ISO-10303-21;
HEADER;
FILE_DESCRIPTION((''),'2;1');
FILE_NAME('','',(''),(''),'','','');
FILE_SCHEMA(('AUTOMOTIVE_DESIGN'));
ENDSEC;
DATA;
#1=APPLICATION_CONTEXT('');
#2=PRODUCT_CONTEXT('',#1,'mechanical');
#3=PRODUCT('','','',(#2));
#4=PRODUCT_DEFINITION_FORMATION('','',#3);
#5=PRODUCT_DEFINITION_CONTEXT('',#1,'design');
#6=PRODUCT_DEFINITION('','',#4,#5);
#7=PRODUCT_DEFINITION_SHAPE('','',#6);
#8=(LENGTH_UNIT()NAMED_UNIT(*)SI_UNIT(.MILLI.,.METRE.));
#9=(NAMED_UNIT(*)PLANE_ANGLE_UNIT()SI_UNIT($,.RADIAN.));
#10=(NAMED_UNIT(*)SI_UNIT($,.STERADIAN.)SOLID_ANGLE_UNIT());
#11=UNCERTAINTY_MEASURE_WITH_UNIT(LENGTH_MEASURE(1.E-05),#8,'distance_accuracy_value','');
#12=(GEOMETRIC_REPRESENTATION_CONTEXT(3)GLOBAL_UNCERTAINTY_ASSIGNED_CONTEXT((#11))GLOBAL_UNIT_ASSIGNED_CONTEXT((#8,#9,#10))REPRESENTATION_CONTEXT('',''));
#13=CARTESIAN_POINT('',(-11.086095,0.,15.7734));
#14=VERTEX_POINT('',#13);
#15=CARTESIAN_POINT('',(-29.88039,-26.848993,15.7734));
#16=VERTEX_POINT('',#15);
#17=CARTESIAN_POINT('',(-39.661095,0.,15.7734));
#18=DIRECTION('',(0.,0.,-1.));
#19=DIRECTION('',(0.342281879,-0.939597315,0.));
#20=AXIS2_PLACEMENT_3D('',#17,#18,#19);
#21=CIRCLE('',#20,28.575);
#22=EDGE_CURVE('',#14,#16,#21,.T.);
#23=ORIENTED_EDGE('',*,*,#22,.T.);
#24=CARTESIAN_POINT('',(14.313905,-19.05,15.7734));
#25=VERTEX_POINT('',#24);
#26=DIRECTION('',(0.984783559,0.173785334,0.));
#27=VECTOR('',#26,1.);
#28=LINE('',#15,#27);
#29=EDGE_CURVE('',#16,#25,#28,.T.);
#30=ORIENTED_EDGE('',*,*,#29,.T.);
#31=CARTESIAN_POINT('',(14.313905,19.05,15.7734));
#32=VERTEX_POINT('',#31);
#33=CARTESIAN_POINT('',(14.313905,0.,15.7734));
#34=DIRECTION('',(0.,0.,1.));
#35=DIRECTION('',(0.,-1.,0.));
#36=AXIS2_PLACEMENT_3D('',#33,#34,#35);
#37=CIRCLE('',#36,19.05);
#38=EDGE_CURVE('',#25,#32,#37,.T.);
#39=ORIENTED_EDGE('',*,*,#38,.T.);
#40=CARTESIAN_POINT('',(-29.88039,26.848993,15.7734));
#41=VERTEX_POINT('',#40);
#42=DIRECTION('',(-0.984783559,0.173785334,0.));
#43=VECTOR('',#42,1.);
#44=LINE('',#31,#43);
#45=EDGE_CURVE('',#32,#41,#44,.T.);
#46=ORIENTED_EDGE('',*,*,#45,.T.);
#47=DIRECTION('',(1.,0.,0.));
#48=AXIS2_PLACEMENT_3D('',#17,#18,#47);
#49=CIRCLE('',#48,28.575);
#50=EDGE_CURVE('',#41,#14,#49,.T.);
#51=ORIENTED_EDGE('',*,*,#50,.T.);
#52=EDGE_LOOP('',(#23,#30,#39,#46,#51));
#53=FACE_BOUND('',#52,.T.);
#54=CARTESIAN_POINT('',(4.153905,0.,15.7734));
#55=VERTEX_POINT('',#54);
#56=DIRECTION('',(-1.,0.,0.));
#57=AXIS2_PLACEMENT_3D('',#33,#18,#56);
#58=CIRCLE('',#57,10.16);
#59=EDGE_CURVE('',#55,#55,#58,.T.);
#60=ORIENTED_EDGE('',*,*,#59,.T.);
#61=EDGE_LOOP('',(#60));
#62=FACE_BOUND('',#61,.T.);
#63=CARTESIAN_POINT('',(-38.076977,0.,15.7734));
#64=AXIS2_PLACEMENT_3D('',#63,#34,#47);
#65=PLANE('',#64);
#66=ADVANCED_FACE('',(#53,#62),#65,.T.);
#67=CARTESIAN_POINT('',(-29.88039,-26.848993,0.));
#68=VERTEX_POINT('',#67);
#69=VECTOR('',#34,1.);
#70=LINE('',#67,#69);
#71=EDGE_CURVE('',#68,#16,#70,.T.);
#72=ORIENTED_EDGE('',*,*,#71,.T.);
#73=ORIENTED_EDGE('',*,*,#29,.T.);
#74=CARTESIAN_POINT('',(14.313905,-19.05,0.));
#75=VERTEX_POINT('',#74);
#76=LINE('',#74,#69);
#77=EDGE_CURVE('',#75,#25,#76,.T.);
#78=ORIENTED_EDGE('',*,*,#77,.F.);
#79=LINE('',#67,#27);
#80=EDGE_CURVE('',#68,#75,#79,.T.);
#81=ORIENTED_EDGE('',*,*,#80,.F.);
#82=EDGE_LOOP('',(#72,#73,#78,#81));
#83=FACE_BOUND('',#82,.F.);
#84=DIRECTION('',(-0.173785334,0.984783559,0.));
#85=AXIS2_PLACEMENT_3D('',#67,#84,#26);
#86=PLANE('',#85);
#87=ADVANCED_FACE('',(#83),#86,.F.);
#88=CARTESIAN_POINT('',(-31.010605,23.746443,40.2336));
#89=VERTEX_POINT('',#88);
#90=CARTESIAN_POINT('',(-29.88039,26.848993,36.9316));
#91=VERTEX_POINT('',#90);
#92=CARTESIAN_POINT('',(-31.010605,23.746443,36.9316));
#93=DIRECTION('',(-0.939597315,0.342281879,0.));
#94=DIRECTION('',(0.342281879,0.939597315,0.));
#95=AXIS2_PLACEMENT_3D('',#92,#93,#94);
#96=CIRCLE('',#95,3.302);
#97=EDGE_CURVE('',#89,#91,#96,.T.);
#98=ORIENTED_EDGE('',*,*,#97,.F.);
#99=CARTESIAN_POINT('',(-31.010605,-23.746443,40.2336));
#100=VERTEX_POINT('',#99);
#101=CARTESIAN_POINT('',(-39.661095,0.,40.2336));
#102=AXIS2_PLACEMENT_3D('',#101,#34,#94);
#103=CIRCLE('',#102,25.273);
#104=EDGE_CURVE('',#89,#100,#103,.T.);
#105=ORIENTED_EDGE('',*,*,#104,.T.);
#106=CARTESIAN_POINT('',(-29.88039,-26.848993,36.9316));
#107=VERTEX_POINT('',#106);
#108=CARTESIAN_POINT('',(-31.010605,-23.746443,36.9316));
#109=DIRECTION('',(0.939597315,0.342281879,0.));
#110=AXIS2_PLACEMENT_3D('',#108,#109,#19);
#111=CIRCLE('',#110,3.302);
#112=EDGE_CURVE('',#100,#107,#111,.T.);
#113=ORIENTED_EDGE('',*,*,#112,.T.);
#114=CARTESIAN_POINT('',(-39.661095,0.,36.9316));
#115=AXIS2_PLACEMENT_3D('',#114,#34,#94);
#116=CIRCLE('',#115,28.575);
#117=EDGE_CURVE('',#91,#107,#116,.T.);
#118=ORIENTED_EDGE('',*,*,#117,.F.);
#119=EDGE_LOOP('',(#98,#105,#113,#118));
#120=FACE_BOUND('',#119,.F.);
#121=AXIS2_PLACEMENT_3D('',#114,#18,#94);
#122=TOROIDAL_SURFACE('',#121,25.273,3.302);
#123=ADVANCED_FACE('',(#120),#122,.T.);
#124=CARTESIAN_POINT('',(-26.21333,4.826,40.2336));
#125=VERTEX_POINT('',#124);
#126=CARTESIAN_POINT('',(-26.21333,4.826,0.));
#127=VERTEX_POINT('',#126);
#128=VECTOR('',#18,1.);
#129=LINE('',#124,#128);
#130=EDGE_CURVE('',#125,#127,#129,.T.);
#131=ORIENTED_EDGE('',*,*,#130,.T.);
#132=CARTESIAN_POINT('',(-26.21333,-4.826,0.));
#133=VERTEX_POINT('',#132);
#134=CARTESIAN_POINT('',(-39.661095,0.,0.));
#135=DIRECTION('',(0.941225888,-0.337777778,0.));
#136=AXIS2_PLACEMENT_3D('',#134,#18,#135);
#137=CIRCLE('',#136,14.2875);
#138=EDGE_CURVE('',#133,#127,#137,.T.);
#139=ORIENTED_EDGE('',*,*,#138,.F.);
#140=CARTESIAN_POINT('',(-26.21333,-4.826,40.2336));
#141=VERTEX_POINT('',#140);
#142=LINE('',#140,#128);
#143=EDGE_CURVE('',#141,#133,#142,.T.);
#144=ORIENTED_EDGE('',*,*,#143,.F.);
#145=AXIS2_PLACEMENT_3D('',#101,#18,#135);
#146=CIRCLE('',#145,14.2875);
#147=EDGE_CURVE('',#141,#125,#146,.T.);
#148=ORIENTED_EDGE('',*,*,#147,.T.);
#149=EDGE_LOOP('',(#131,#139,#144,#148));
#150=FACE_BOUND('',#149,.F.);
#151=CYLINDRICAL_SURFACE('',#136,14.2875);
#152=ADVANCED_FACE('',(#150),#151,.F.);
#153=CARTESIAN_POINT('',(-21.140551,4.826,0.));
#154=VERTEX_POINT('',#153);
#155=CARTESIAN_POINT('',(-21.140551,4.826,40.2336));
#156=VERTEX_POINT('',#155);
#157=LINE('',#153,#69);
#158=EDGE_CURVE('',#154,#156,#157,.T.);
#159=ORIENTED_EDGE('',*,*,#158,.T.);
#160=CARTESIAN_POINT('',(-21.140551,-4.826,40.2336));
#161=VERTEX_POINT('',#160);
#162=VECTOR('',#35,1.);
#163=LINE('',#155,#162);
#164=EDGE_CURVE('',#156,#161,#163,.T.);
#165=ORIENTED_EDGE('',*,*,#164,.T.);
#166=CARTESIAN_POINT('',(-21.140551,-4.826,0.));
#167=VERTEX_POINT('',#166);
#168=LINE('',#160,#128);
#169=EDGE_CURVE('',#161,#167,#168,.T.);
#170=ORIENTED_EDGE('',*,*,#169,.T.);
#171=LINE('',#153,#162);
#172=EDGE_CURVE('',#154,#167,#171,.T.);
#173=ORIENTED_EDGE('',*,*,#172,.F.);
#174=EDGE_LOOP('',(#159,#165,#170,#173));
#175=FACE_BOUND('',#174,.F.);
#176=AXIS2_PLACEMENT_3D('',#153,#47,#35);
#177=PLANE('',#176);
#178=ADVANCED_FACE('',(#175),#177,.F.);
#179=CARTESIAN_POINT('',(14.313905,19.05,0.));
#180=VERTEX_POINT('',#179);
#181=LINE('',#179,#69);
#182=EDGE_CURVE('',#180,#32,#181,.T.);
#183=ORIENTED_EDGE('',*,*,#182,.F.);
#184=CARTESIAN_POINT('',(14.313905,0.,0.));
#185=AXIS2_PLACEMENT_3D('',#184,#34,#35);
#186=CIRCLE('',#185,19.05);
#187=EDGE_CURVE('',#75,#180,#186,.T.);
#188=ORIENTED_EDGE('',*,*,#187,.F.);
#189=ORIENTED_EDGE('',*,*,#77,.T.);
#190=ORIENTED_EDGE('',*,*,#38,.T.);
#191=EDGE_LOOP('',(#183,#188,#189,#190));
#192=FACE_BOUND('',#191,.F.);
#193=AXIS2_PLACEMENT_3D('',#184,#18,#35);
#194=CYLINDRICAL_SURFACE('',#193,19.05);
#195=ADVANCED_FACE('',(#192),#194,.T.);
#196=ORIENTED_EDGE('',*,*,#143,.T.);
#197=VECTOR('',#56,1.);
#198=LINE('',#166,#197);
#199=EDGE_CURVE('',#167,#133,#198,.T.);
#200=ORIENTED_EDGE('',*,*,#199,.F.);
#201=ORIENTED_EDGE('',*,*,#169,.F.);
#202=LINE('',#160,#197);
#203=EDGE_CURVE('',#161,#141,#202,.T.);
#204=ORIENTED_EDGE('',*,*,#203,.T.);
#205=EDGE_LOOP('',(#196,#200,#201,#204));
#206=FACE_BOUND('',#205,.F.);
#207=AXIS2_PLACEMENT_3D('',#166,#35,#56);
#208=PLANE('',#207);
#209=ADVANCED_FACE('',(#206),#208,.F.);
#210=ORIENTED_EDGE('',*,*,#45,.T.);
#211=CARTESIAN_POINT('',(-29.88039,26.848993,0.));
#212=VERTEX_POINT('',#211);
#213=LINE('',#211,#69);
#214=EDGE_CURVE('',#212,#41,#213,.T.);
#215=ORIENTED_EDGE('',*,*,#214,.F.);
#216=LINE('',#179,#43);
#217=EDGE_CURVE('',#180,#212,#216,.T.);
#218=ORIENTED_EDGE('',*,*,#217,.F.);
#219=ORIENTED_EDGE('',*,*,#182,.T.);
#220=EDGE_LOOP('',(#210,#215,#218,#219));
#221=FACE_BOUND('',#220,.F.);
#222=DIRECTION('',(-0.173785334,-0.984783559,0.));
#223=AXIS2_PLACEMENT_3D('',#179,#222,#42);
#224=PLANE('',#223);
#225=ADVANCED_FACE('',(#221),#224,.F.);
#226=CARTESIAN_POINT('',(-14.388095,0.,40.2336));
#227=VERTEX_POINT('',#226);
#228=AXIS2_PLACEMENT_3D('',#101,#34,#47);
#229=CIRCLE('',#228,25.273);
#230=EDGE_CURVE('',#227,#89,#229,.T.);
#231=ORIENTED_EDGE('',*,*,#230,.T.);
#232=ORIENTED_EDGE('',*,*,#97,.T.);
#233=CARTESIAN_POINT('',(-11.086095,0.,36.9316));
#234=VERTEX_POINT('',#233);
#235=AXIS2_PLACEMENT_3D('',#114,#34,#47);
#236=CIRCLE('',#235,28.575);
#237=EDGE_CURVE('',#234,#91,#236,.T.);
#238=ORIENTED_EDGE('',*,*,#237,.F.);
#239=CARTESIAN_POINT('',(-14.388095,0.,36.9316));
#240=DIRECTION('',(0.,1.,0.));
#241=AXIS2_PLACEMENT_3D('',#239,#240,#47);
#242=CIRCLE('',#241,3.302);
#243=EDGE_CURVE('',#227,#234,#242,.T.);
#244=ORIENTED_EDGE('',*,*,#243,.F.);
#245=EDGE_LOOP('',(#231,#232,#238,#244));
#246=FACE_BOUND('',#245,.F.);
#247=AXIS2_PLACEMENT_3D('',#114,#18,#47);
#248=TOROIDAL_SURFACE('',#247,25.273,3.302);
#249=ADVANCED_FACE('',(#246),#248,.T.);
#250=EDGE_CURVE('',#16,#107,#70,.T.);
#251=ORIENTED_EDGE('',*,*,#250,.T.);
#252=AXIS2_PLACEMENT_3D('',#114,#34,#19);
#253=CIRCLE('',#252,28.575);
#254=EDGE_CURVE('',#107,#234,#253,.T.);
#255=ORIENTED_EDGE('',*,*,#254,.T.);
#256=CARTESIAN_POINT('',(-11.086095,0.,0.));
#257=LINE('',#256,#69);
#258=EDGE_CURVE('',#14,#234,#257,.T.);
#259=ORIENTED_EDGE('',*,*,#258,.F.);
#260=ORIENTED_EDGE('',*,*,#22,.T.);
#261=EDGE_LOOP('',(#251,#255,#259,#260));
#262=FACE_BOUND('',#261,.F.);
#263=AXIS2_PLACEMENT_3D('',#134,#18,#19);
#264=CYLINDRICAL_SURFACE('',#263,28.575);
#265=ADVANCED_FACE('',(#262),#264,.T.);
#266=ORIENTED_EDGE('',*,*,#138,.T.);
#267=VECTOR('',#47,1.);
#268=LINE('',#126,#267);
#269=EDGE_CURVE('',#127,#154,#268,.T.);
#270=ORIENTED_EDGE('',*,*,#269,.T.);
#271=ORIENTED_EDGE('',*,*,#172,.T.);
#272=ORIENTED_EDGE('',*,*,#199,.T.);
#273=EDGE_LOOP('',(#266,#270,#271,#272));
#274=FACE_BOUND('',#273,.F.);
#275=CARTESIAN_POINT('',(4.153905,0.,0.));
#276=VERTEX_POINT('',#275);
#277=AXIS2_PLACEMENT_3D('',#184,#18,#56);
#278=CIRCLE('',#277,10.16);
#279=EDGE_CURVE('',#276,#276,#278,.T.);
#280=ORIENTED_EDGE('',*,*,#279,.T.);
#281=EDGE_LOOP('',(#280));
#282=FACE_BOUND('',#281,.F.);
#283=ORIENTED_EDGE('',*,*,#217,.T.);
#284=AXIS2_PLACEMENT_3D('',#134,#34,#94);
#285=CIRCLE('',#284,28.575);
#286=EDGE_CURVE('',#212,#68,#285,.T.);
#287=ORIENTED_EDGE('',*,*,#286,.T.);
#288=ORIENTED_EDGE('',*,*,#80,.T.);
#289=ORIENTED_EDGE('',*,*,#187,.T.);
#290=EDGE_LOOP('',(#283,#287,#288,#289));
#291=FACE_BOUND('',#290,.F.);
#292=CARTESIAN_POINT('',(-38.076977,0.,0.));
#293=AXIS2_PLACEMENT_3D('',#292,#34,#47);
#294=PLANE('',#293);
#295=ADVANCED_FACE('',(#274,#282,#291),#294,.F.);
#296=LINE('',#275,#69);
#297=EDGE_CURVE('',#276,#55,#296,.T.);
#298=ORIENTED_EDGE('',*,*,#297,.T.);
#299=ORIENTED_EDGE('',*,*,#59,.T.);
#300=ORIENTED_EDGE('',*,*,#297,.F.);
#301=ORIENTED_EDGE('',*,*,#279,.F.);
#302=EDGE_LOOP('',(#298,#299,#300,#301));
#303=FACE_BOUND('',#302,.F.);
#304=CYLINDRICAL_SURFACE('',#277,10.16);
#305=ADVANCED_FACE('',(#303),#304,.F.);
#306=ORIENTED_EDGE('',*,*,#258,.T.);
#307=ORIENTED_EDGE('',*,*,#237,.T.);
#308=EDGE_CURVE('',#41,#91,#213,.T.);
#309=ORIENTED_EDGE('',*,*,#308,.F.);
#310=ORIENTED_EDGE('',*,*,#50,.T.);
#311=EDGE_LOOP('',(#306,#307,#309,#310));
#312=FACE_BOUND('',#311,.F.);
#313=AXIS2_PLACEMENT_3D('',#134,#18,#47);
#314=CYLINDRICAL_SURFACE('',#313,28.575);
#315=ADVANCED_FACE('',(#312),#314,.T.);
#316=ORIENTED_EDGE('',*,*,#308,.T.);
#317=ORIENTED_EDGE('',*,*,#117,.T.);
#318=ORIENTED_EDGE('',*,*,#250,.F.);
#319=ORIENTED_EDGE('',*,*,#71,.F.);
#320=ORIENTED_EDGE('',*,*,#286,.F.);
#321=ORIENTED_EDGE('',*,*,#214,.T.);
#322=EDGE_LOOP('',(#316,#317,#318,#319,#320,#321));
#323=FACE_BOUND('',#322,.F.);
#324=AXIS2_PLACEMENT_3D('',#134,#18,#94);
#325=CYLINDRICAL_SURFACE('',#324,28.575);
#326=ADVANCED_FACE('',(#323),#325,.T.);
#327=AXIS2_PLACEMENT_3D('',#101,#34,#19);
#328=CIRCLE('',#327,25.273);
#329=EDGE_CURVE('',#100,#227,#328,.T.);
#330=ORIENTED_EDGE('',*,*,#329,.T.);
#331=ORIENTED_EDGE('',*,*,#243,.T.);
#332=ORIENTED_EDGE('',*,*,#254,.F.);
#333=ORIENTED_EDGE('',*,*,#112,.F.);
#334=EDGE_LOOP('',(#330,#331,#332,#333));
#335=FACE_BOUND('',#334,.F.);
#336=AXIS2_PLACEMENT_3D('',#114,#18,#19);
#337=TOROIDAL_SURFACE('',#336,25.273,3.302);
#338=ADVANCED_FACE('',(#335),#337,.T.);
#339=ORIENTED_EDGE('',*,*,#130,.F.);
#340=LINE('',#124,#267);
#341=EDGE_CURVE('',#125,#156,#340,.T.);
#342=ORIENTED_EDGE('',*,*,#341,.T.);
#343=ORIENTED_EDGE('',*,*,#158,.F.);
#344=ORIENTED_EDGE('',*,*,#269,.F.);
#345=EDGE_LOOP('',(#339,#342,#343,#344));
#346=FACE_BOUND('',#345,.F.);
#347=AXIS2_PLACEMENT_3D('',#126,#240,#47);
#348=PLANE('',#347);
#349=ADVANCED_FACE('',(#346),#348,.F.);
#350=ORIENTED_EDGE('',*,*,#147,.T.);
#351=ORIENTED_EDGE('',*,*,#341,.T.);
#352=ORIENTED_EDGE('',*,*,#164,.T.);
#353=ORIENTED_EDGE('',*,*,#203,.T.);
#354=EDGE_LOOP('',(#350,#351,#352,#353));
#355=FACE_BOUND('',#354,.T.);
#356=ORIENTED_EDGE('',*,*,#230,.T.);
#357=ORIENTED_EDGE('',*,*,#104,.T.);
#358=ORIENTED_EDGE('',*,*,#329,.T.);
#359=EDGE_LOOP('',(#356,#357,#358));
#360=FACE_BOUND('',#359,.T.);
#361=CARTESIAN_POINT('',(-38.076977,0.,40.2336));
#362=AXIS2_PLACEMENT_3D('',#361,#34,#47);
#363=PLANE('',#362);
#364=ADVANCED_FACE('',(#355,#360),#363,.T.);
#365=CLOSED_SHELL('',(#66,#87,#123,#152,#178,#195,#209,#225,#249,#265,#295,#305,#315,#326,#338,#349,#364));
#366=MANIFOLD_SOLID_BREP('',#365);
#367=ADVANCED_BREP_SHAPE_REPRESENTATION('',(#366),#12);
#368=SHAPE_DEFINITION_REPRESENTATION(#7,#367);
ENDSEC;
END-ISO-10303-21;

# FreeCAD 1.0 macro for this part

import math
import FreeCAD as App
import Part
import Sketcher

V = App.Vector
Q = App.Units.Quantity


def edges_at(feature, points):
    """Names of the edges that pass closest to the given points."""
    edges = feature.Shape.Edges
    near = lambda p: min(range(len(edges)), key=lambda i: edges[i].distToShape(Part.Vertex(*p))[0])
    return sorted({f"Edge{near(p) + 1}" for p in points})

doc = App.newDocument("Part")
params = doc.addObject("Spreadsheet::Sheet", "Params")
for row, (alias, value) in enumerate([
    ("sketch1_radius", "1.125 in"),
    ("sketch1_radius2", "0.5625 in"),
    ("sketch1_height", "0.38 in"),
    ("pad1_length", "1.584 in"),
    ("sketch2_diameter", "0.8 in"),
    ("sketch2_radius", "0.75 in"),
    ("sketch2_radius2", "1.125 in"),
    ("sketch2_radius3", "0.5625 in"),
    ("sketch2_height", "0.38 in"),
    ("pad2_length", "0.621 in"),
    ("fillet_radius", "0.13 in"),
], start=1):
    params.set(f"A{row}", alias)
    params.set(f"B{row}", "=" + value)
    params.setAlias(f"B{row}", alias)

body = doc.addObject("PartDesign::Body", "Body")

sketch1 = doc.addObject("Sketcher::SketchObject", "Sketch")
body.addObject(sketch1)
sketch1.AttachmentSupport = (doc.XY_Plane, [""])
sketch1.MapMode = "FlatFace"
sketch1.addGeometry(Part.ArcOfCircle(Part.Circle(V(-40, 0, 0), V(0, 0, 1), 29), math.radians(-70), math.radians(0)), False)
sketch1.addGeometry(Part.ArcOfCircle(Part.Circle(V(-40, 0, 0), V(0, 0, 1), 29), math.radians(0), math.radians(70)), False)
sketch1.addGeometry(Part.ArcOfCircle(Part.Circle(V(-40, 0, 0), V(0, 0, 1), 29), math.radians(70), math.radians(290)), False)
sketch1.addGeometry(Part.LineSegment(V(-26, 5, 0), V(-21, 5, 0)), False)
sketch1.addGeometry(Part.LineSegment(V(-21, 5, 0), V(-21, -5, 0)), False)
sketch1.addGeometry(Part.LineSegment(V(-21, -5, 0), V(-26, -5, 0)), False)
sketch1.addGeometry(Part.ArcOfCircle(Part.Circle(V(-40, 0, 0), V(0, 0, 1), 14), math.radians(20), math.radians(340)), False)
sketch1.addConstraint(Sketcher.Constraint("Tangent", 0, 2, 1, 1))
sketch1.addConstraint(Sketcher.Constraint("Tangent", 1, 2, 2, 1))
sketch1.addConstraint(Sketcher.Constraint("Tangent", 2, 2, 0, 1))
sketch1.addConstraint(Sketcher.Constraint("Coincident", 3, 2, 4, 1))
sketch1.addConstraint(Sketcher.Constraint("Coincident", 4, 2, 5, 1))
sketch1.addConstraint(Sketcher.Constraint("Coincident", 5, 2, 6, 2))
sketch1.addConstraint(Sketcher.Constraint("Coincident", 6, 1, 3, 1))
sketch1.addConstraint(Sketcher.Constraint("Horizontal", 3))
sketch1.addConstraint(Sketcher.Constraint("Vertical", 4))
sketch1.addConstraint(Sketcher.Constraint("Horizontal", 5))
sketch1.addConstraint(Sketcher.Constraint("Coincident", 6, 3, 0, 3))
sketch1.addConstraint(Sketcher.Constraint("Symmetric", 1, 2, 2, 2, -1))
sketch1.addConstraint(Sketcher.Constraint("PointOnObject", 0, 2, -1))
sketch1.addConstraint(Sketcher.Constraint("Vertical", 5, 2, 6, 1))
sketch1.addConstraint(Sketcher.Constraint("Radius", 0, Q("1.125 in")))
sketch1.addConstraint(Sketcher.Constraint("Radius", 6, Q("0.5625 in")))
sketch1.addConstraint(Sketcher.Constraint("DistanceY", 4, 2, 4, 1, Q("0.38 in")))
sketch1.addConstraint(Sketcher.Constraint("DistanceX", 3, 1, 3, 2, 5.072779))
sketch1.addConstraint(Sketcher.Constraint("DistanceX", 1, 2, -1, 1, 29.88039))
sketch1.addConstraint(Sketcher.Constraint("DistanceX", 3, 2, -1, 1, 21.140551))
sketch1.setExpression("Constraints[14]", "Params.sketch1_radius")
sketch1.setExpression("Constraints[15]", "Params.sketch1_radius2")
sketch1.setExpression("Constraints[16]", "Params.sketch1_height")
pad1 = doc.addObject("PartDesign::Pad", "Pad")
body.addObject(pad1)
pad1.Profile = sketch1
pad1.setExpression("Length", "Params.pad1_length")

sketch2 = doc.addObject("Sketcher::SketchObject", "Sketch001")
body.addObject(sketch2)
sketch2.AttachmentSupport = (doc.XY_Plane, [""])
sketch2.MapMode = "FlatFace"
sketch2.addGeometry(Part.ArcOfCircle(Part.Circle(V(-40, 0, 0), V(0, 0, 1), 29), math.radians(70), math.radians(290)), False)
sketch2.addGeometry(Part.LineSegment(V(-30, -27, 0), V(14, -19, 0)), False)
sketch2.addGeometry(Part.ArcOfCircle(Part.Circle(V(14, 0, 0), V(0, 0, 1), 19), math.radians(-90), math.radians(90)), False)
sketch2.addGeometry(Part.LineSegment(V(14, 19, 0), V(-30, 27, 0)), False)
sketch2.addGeometry(Part.LineSegment(V(-26, 5, 0), V(-21, 5, 0)), False)
sketch2.addGeometry(Part.LineSegment(V(-21, 5, 0), V(-21, -5, 0)), False)
sketch2.addGeometry(Part.LineSegment(V(-21, -5, 0), V(-26, -5, 0)), False)
sketch2.addGeometry(Part.ArcOfCircle(Part.Circle(V(-40, 0, 0), V(0, 0, 1), 14), math.radians(20), math.radians(340)), False)
sketch2.addGeometry(Part.Circle(V(14, 0, 0), V(0, 0, 1), 10), False)
sketch2.addConstraint(Sketcher.Constraint("Coincident", 0, 2, 1, 1))
sketch2.addConstraint(Sketcher.Constraint("Coincident", 1, 2, 2, 1))
sketch2.addConstraint(Sketcher.Constraint("Coincident", 2, 2, 3, 1))
sketch2.addConstraint(Sketcher.Constraint("Coincident", 3, 2, 0, 1))
sketch2.addConstraint(Sketcher.Constraint("Coincident", 4, 2, 5, 1))
sketch2.addConstraint(Sketcher.Constraint("Coincident", 5, 2, 6, 1))
sketch2.addConstraint(Sketcher.Constraint("Coincident", 6, 2, 7, 2))
sketch2.addConstraint(Sketcher.Constraint("Coincident", 7, 1, 4, 1))
sketch2.addConstraint(Sketcher.Constraint("Horizontal", 4))
sketch2.addConstraint(Sketcher.Constraint("Vertical", 5))
sketch2.addConstraint(Sketcher.Constraint("Horizontal", 6))
sketch2.addConstraint(Sketcher.Constraint("Coincident", 7, 3, 0, 3))
sketch2.addConstraint(Sketcher.Constraint("Coincident", 8, 3, 2, 3))
sketch2.addConstraint(Sketcher.Constraint("Symmetric", 1, 2, 2, 2, -1))
sketch2.addConstraint(Sketcher.Constraint("Symmetric", 0, 2, 3, 2, -1))
sketch2.addConstraint(Sketcher.Constraint("Vertical", 8, 3, 1, 2))
sketch2.addConstraint(Sketcher.Constraint("Vertical", 6, 2, 7, 1))
sketch2.addConstraint(Sketcher.Constraint("Diameter", 8, Q("0.8 in")))
sketch2.addConstraint(Sketcher.Constraint("Radius", 2, Q("0.75 in")))
sketch2.addConstraint(Sketcher.Constraint("Radius", 0, Q("1.125 in")))
sketch2.addConstraint(Sketcher.Constraint("Radius", 7, Q("0.5625 in")))
sketch2.addConstraint(Sketcher.Constraint("DistanceY", 5, 2, 5, 1, Q("0.38 in")))
sketch2.addConstraint(Sketcher.Constraint("DistanceX", 0, 3, 2, 3, Q("2.125 in")))
sketch2.addConstraint(Sketcher.Constraint("DistanceX", 4, 1, 4, 2, 5.072779))
sketch2.addConstraint(Sketcher.Constraint("DistanceX", 0, 2, -1, 1, 29.88039))
sketch2.addConstraint(Sketcher.Constraint("DistanceX", 4, 2, -1, 1, 21.140551))
sketch2.setExpression("Constraints[17]", "Params.sketch2_diameter")
sketch2.setExpression("Constraints[18]", "Params.sketch2_radius")
sketch2.setExpression("Constraints[19]", "Params.sketch2_radius2")
sketch2.setExpression("Constraints[20]", "Params.sketch2_radius3")
sketch2.setExpression("Constraints[21]", "Params.sketch2_height")
pad2 = doc.addObject("PartDesign::Pad", "Pad001")
body.addObject(pad2)
pad2.Profile = sketch2
pad2.setExpression("Length", "Params.pad2_length")
doc.recompute()

fillet = doc.addObject("PartDesign::Fillet", "Fillet")
body.addObject(fillet)
fillet.Base = (pad2, edges_at(pad2, [(-68.236, 0, 40.234)]))
fillet.setExpression("Radius", "Params.fillet_radius")

doc.recompute()
